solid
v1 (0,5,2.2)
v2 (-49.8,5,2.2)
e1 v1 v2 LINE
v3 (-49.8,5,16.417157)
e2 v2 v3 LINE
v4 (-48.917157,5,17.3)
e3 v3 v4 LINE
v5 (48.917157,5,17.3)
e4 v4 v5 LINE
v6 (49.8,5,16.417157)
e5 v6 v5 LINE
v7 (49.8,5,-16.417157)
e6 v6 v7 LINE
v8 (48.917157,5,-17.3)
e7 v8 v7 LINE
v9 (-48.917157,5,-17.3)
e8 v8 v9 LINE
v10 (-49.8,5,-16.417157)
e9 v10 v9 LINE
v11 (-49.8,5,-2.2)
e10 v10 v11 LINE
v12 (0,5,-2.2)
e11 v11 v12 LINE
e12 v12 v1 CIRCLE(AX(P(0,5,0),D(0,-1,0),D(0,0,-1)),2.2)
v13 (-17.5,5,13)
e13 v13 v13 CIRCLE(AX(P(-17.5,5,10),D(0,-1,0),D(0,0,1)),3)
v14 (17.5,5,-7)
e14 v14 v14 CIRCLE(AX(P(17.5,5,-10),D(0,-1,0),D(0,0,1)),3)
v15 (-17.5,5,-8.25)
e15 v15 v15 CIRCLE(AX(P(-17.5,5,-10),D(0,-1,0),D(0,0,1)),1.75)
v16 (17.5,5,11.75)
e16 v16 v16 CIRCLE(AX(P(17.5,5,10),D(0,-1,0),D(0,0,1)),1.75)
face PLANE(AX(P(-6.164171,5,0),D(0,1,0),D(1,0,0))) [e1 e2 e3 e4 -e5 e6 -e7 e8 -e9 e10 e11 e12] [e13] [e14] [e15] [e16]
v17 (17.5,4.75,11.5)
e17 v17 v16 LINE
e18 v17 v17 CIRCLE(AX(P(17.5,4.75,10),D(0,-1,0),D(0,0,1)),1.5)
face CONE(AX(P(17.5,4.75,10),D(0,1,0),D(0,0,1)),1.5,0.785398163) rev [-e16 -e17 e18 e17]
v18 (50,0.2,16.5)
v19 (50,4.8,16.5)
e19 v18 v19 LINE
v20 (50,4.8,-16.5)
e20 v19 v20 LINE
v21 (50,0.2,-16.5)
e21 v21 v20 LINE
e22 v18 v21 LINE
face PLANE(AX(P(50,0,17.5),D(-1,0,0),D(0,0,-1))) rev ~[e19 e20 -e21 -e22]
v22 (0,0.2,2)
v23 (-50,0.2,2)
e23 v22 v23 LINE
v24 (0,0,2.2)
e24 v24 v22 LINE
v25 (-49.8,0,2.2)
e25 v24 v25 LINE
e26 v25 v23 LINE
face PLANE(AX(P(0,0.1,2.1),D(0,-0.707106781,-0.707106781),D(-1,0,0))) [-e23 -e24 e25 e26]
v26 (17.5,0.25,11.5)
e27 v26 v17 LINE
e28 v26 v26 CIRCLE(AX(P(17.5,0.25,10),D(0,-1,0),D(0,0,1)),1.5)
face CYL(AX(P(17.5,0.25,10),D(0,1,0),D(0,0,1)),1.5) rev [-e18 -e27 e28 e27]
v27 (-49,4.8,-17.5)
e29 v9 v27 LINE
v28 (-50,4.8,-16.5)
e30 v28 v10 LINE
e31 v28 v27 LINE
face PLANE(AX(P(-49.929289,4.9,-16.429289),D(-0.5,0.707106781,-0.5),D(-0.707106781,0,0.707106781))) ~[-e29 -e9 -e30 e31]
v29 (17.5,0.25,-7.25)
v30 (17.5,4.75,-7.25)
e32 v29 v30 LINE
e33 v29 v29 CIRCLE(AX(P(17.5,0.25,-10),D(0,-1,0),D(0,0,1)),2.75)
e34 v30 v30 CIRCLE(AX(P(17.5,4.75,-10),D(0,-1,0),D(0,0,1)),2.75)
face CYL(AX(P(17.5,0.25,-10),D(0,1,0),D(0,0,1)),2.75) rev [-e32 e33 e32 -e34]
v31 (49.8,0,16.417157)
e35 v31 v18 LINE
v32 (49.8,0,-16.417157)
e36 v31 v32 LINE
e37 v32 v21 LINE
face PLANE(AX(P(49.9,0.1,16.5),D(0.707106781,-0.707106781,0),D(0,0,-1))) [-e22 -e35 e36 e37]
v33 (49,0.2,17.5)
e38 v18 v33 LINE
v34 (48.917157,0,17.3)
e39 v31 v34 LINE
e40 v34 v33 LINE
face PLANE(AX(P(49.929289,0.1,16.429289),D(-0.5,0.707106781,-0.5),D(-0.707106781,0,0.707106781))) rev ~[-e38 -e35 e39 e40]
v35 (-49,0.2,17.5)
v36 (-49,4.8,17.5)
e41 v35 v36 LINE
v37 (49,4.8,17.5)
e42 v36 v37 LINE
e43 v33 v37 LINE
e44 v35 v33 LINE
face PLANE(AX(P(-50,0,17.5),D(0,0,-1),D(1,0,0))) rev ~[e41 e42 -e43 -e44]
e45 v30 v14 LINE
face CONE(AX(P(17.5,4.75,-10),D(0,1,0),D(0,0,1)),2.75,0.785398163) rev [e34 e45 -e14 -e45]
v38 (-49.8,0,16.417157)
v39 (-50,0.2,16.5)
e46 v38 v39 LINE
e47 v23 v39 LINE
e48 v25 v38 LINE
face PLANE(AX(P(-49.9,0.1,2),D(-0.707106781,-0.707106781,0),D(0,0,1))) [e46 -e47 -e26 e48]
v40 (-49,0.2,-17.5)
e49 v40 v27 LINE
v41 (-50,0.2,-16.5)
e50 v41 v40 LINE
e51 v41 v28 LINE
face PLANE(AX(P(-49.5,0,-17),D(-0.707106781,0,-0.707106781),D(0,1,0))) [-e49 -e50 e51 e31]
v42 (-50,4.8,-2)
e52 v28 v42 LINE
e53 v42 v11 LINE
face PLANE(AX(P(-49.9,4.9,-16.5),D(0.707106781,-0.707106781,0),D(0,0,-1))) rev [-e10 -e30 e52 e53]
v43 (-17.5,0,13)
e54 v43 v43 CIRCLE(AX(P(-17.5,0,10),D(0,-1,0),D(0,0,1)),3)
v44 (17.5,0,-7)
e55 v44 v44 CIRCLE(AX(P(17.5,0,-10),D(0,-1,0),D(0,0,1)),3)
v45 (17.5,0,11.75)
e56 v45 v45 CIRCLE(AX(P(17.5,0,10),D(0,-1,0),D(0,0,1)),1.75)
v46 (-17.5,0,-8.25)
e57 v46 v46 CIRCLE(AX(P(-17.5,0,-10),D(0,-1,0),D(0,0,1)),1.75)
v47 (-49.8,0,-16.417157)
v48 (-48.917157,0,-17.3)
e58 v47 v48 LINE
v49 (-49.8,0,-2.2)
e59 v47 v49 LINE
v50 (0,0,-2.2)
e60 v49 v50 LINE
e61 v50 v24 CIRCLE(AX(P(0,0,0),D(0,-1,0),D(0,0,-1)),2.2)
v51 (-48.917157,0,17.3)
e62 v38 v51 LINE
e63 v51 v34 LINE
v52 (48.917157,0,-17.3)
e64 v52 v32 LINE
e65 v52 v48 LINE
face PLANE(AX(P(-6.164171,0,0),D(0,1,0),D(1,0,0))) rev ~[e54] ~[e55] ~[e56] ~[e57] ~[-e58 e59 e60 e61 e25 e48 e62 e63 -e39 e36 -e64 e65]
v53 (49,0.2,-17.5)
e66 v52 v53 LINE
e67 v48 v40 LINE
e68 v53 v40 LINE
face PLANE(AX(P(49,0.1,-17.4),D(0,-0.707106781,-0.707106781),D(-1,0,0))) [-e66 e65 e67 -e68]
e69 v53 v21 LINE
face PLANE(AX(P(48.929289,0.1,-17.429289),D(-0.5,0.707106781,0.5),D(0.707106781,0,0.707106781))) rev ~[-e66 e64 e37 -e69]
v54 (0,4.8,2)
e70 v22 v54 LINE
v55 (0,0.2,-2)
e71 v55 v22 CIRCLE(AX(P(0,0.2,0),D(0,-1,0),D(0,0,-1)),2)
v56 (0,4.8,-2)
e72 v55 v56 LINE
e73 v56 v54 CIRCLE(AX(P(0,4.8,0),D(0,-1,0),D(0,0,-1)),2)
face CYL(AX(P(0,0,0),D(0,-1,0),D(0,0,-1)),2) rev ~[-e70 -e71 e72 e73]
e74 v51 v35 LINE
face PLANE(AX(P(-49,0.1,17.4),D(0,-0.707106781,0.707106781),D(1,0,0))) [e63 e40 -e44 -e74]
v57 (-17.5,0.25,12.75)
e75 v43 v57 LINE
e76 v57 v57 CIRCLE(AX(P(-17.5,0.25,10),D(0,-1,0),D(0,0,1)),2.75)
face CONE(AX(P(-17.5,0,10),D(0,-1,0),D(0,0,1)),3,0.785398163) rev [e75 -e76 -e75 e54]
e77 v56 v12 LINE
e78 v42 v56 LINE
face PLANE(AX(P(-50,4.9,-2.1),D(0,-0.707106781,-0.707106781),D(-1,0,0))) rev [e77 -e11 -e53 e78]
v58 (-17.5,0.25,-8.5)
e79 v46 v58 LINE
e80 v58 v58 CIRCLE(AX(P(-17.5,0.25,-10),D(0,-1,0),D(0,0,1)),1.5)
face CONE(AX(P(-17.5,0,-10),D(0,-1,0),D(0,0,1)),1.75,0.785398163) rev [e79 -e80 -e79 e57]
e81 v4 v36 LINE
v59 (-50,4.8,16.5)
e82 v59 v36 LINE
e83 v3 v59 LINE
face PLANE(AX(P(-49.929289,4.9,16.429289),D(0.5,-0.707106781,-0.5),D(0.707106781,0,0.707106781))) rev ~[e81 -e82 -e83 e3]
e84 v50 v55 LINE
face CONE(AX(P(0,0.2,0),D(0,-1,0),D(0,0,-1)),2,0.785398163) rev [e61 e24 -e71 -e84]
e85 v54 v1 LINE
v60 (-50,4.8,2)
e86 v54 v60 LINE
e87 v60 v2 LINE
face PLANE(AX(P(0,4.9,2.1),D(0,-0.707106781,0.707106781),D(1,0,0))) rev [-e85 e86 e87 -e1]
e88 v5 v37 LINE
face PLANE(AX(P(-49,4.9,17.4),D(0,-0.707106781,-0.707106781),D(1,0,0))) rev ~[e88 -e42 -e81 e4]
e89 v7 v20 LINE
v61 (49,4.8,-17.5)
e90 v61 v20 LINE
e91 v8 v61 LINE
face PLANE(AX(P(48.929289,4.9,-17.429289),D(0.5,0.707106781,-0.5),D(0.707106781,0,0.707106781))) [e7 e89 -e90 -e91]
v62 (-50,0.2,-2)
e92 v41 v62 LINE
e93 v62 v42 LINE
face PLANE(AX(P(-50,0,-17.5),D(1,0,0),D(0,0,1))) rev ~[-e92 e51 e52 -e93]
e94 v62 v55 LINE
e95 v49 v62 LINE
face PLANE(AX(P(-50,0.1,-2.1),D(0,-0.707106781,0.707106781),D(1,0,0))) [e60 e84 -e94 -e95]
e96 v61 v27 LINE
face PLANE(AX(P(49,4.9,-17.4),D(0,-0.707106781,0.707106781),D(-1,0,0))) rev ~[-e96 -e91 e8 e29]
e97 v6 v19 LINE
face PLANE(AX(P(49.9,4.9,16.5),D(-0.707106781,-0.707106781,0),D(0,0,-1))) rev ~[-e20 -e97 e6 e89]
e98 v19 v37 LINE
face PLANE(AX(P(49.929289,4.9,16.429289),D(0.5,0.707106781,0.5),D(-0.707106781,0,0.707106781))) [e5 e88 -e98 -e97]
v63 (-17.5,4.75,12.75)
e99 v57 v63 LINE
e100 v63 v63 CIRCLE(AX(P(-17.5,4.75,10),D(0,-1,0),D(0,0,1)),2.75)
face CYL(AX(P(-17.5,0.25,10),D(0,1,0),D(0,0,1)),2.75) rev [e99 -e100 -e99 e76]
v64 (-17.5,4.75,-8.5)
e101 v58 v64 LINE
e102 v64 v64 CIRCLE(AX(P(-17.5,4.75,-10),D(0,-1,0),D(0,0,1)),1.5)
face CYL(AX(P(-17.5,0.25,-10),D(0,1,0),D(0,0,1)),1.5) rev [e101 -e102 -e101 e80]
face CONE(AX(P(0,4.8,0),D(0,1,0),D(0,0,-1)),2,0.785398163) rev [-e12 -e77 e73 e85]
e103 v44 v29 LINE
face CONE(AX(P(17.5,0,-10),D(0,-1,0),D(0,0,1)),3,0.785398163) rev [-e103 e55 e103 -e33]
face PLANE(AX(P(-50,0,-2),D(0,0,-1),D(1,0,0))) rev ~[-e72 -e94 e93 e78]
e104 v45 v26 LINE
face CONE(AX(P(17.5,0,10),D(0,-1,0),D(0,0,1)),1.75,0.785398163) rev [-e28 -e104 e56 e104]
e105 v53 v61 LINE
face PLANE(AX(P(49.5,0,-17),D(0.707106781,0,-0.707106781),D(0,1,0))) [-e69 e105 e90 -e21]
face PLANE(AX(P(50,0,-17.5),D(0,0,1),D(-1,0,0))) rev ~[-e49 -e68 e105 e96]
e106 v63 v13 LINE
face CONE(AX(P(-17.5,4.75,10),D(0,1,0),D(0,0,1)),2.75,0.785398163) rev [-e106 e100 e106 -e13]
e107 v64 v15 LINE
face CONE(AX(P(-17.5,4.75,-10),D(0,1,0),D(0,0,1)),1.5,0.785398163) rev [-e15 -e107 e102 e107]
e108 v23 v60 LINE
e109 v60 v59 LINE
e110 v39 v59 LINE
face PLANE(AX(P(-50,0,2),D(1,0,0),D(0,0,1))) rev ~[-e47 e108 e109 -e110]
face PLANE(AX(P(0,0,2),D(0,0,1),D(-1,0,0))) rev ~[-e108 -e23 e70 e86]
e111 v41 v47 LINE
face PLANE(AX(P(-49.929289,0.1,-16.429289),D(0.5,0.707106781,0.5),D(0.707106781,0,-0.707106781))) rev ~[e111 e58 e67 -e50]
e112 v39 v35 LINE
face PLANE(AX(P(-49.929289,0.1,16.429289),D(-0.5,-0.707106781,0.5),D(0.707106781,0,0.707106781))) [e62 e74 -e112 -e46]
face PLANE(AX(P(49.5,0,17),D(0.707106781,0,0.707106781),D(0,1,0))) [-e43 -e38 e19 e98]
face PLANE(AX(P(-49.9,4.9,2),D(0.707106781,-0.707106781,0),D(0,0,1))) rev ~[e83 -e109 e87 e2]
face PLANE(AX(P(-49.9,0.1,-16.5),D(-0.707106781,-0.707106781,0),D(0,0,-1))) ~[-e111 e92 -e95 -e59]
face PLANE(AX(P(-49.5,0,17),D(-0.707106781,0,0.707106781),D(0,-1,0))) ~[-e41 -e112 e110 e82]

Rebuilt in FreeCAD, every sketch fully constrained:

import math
import FreeCAD as App
import Part
import Sketcher
from FreeCAD import Vector
Q = App.Units.Quantity


def edges_at(feature, points):
    """Names of the edges that pass closest to the given points."""
    edges = feature.Shape.Edges
    near = lambda p: min(range(len(edges)), key=lambda i: edges[i].distToShape(Part.Vertex(*p))[0])
    return sorted({f"Edge{near(p) + 1}" for p in points})


def add_polygon(sketch, points):
    """Adds a closed chain of lines whose ends are joined by coincident constraints."""
    first, n = sketch.GeometryCount, len(points)
    for a, b in zip(points, points[1:] + points[:1]):
        sketch.addGeometry(Part.LineSegment(App.Vector(*a, 0), App.Vector(*b, 0)), False)
    for i in range(n):
        sketch.addConstraint(Sketcher.Constraint("Coincident", first + i, 2, first + (i + 1) % n, 1))

doc = App.newDocument("Part")
body = doc.addObject("PartDesign::Body", "Body")

sketch1 = body.newObject("Sketcher::SketchObject", "Sketch")
sketch1.AttachmentSupport = (doc.getObject("XZ_Plane"), [""])
sketch1.MapMode = "FlatFace"
sketch1.addGeometry([
    Part.LineSegment(Vector(-50, -2, 0), Vector(0, -2, 0)),
    Part.ArcOfCircle(Part.Circle(Vector(0, 0, 0), Vector(0, 0, 1), 2), math.radians(-90), math.radians(90)),
    Part.LineSegment(Vector(0, 2, 0), Vector(-50, 2, 0)),
    Part.LineSegment(Vector(-50, 2, 0), Vector(-50, 17.5, 0)),
    Part.LineSegment(Vector(-50, 17.5, 0), Vector(50, 17.5, 0)),
    Part.LineSegment(Vector(50, 17.5, 0), Vector(50, -17.5, 0)),
    Part.LineSegment(Vector(50, -17.5, 0), Vector(-50, -17.5, 0)),
    Part.LineSegment(Vector(-50, -17.5, 0), Vector(-50, -2, 0)),
], False)
sketch1.addConstraint([
    Sketcher.Constraint("Tangent", 0, 2, 1, 1),
    Sketcher.Constraint("Tangent", 1, 2, 2, 1),
    Sketcher.Constraint("Coincident", 2, 2, 3, 1),
    Sketcher.Constraint("Coincident", 3, 2, 4, 1),
    Sketcher.Constraint("Coincident", 4, 2, 5, 1),
    Sketcher.Constraint("Coincident", 5, 2, 6, 1),
    Sketcher.Constraint("Coincident", 6, 2, 7, 1),
    Sketcher.Constraint("Coincident", 7, 2, 0, 1),
    Sketcher.Constraint("Horizontal", 0),
    Sketcher.Constraint("Horizontal", 2),
    Sketcher.Constraint("Vertical", 3),
    Sketcher.Constraint("Horizontal", 4),
    Sketcher.Constraint("Vertical", 5),
    Sketcher.Constraint("Horizontal", 6),
    Sketcher.Constraint("Vertical", 7),
    Sketcher.Constraint("Coincident", 1, 3, -1, 1),
    Sketcher.Constraint("Symmetric", 3, 2, 5, 2, -1, 1),
    Sketcher.Constraint("Vertical", 3, 2, 6, 2),
    Sketcher.Constraint("Radius", 1, Q("2 mm")),
    Sketcher.Constraint("DistanceX", 0, 1, 0, 2, Q("50 mm")),
    Sketcher.Constraint("DistanceY", 5, 2, 5, 1, Q("35 mm")),
])
pad1 = body.newObject("PartDesign::Pad", "Pad")
pad1.Profile = sketch1
pad1.Length = 5
pad1.Reversed = True

sketch2 = body.newObject("Sketcher::SketchObject", "Sketch001")
sketch2.AttachmentSupport = (doc.getObject("YZ_Plane"), [""])
sketch2.MapMode = "FlatFace"
sketch2.AttachmentOffset = App.Placement(Vector(0, 0, -17.5), App.Rotation())
add_polygon(sketch2, [(0, -10), (5, -10), (5, -8.25), (4.75, -8.5), (0.25, -8.5), (0, -8.25)])
sketch2.addGeometry(Part.LineSegment(Vector(5, -10, 0), Vector(0, -10, 0)), True)
sketch2.addConstraint([
    Sketcher.Constraint("Horizontal", 0),
    Sketcher.Constraint("Vertical", 1),
    Sketcher.Constraint("Horizontal", 3),
    Sketcher.Constraint("Vertical", 5),
    Sketcher.Constraint("Horizontal", 6),
    Sketcher.Constraint("Coincident", 6, 1, 0, 2),
    Sketcher.Constraint("PointOnObject", 4, 2, -2),
    Sketcher.Constraint("PointOnObject", 6, 2, -2),
    Sketcher.Constraint("Perpendicular", 2, 4),
    Sketcher.Constraint("Horizontal", 1, 2, 4, 2),
    Sketcher.Constraint("Equal", 2, 4),
    Sketcher.Constraint("DistanceX", 0, 1, 0, 2, Q("5 mm")),
    Sketcher.Constraint("DistanceX", 3, 2, 3, 1, Q("4.5 mm")),
    Sketcher.Constraint("DistanceY", 0, 2, -1, 1, Q("10 mm")),
    Sketcher.Constraint("DistanceY", 1, 1, 1, 2, Q("1.75 mm")),
])
groove = body.newObject("PartDesign::Groove", "Groove")
groove.Profile = sketch2
groove.ReferenceAxis = (sketch2, ["Axis0"])
groove.Angle = 360
doc.recompute()

datumline = body.newObject("PartDesign::Line", "DatumLine")
datumline.Placement = App.Placement(Vector(0, 0, 0), App.Rotation(Vector(0, 0, 1), Vector(0.868243142, 0, 0.496138938)))
linearpattern = body.newObject("PartDesign::LinearPattern", "LinearPattern")
linearpattern.Originals = [groove]
linearpattern.Direction = (datumline, [""])
linearpattern.Mode = "offset"
linearpattern.Offset = 40.311289
linearpattern.Occurrences = 2
body.Tip = linearpattern

sketch3 = body.newObject("Sketcher::SketchObject", "Sketch002")
sketch3.AttachmentSupport = (doc.getObject("YZ_Plane"), [""])
sketch3.MapMode = "FlatFace"
sketch3.AttachmentOffset = App.Placement(Vector(0, 0, -17.5), App.Rotation())
add_polygon(sketch3, [(0, 10), (5, 10), (5, 13), (4.75, 12.75), (0.25, 12.75), (0, 13)])
sketch3.addGeometry(Part.LineSegment(Vector(5, 10, 0), Vector(0, 10, 0)), True)
sketch3.addConstraint([
    Sketcher.Constraint("Horizontal", 0),
    Sketcher.Constraint("Vertical", 1),
    Sketcher.Constraint("Horizontal", 3),
    Sketcher.Constraint("Vertical", 5),
    Sketcher.Constraint("Horizontal", 6),
    Sketcher.Constraint("Coincident", 6, 1, 0, 2),
    Sketcher.Constraint("PointOnObject", 4, 2, -2),
    Sketcher.Constraint("PointOnObject", 6, 2, -2),
    Sketcher.Constraint("Perpendicular", 2, 4),
    Sketcher.Constraint("Horizontal", 1, 2, 4, 2),
    Sketcher.Constraint("Equal", 2, 4),
    Sketcher.Constraint("DistanceX", 0, 1, 0, 2, Q("5 mm")),
    Sketcher.Constraint("DistanceY", 1, 1, 1, 2, Q("3 mm")),
    Sketcher.Constraint("DistanceX", 3, 2, 3, 1, Q("4.5 mm")),
    Sketcher.Constraint("DistanceY", -1, 1, 0, 2, Q("10 mm")),
])
groove2 = body.newObject("PartDesign::Groove", "Groove001")
groove2.Profile = sketch3
groove2.ReferenceAxis = (sketch3, ["Axis0"])
groove2.Angle = 360
doc.recompute()

datumline2 = body.newObject("PartDesign::Line", "DatumLine001")
datumline2.Placement = App.Placement(Vector(0, 0, 0), App.Rotation(Vector(0, 0, 1), Vector(0.868243142, 0, -0.496138938)))
linearpattern2 = body.newObject("PartDesign::LinearPattern", "LinearPattern001")
linearpattern2.Originals = [groove2]
linearpattern2.Direction = (datumline2, [""])
linearpattern2.Mode = "offset"
linearpattern2.Offset = 40.311289
linearpattern2.Occurrences = 2
body.Tip = linearpattern2
doc.recompute()

chamfer = body.newObject("PartDesign::Chamfer", "Chamfer")
chamfer.Base = (linearpattern2, edges_at(linearpattern2, [
    (50, 2.5, 17.5),
    (-50, 2.5, 17.5),
    (-50, 2.5, -17.5),
    (50, 2.5, -17.5),
]))
chamfer.Size = 1
doc.recompute()

chamfer2 = body.newObject("PartDesign::Chamfer", "Chamfer001")
chamfer2.Base = (chamfer, edges_at(chamfer, [
    (-25, 0, -2),
    (-25, 5, -2),
    (2, 5, 0),
    (-25, 5, 2),
    (-50, 5, 9.25),
    (0, 0, -17.5),
    (0, 5, -17.5),
    (50, 0, 0),
    (0, 0, 17.5),
    (-50, 0, -9.25),
    (-49.5, 0, -17),
    (-49.5, 0, 17),
    (49.5, 0, 17),
    (49.5, 0, -17),
    (50, 5, 0),
    (-50, 5, -9.25),
    (0, 5, 17.5),
    (-49.5, 5, -17),
    (-49.5, 5, 17),
    (49.5, 5, 17),
    (49.5, 5, -17),
    (-50, 0, 9.25),
    (-25, 0, 2),
    (2, 0, 0),
]))
chamfer2.Size = 0.2

doc.recompute()
